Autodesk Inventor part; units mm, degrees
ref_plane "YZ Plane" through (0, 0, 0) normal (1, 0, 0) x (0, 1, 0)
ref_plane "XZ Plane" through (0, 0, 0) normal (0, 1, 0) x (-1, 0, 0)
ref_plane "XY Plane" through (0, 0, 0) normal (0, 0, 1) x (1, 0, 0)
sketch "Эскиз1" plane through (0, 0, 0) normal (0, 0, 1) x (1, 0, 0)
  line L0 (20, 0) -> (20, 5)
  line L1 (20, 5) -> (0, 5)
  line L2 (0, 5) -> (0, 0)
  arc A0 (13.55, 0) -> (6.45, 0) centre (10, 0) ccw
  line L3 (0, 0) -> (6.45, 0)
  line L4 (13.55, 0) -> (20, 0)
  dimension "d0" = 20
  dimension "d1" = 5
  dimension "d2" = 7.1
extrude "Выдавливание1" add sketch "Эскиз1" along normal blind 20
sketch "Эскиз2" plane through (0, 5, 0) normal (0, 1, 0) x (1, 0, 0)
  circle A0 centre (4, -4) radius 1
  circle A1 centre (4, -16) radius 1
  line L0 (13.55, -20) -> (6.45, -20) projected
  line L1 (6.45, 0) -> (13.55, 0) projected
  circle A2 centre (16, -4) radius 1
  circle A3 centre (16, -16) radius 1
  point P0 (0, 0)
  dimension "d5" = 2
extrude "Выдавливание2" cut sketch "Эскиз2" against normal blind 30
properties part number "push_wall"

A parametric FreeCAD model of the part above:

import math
import FreeCAD as App
import Part
import Sketcher

V = App.Vector

doc = App.newDocument("Part")
body = doc.addObject("PartDesign::Body", "Body")

sketch1 = body.newObject("Sketcher::SketchObject", "Sketch")
sketch1.AttachmentSupport = (doc.getObject("XY_Plane"), [""])
sketch1.MapMode = "FlatFace"
sketch1.addGeometry(Part.LineSegment(V(13.6, 0, 0), V(20, 0, 0)), False)
sketch1.addGeometry(Part.LineSegment(V(20, 0, 0), V(20, 5, 0)), False)
sketch1.addGeometry(Part.LineSegment(V(20, 5, 0), V(0, 5, 0)), False)
sketch1.addGeometry(Part.LineSegment(V(0, 5, 0), V(0, 0, 0)), False)
sketch1.addGeometry(Part.LineSegment(V(0, 0, 0), V(6.5, 0, 0)), False)
sketch1.addGeometry(Part.ArcOfCircle(Part.Circle(V(10, 0, 0), V(0, 0, 1), 3.6), math.radians(0), math.radians(180)), False)
sketch1.addConstraint(Sketcher.Constraint("Coincident", 0, 2, 1, 1))
sketch1.addConstraint(Sketcher.Constraint("Coincident", 1, 2, 2, 1))
sketch1.addConstraint(Sketcher.Constraint("Coincident", 2, 2, 3, 1))
sketch1.addConstraint(Sketcher.Constraint("Coincident", 3, 2, 4, 1))
sketch1.addConstraint(Sketcher.Constraint("Coincident", 4, 2, 5, 2))
sketch1.addConstraint(Sketcher.Constraint("Coincident", 5, 1, 0, 1))
sketch1.addConstraint(Sketcher.Constraint("Horizontal", 0))
sketch1.addConstraint(Sketcher.Constraint("Vertical", 1))
sketch1.addConstraint(Sketcher.Constraint("Horizontal", 2))
sketch1.addConstraint(Sketcher.Constraint("Vertical", 3))
sketch1.addConstraint(Sketcher.Constraint("Horizontal", 4))
sketch1.addConstraint(Sketcher.Constraint("Coincident", 3, 2, -1, 1))
sketch1.addConstraint(Sketcher.Constraint("PointOnObject", 5, 3, -1))
sketch1.addConstraint(Sketcher.Constraint("PointOnObject", 0, 2, -1))
sketch1.addConstraint(Sketcher.Constraint("Equal", 0, 4))
sketch1.addConstraint(Sketcher.Constraint("DistanceX", 2, 2, 2, 1, 20.0))
sketch1.addConstraint(Sketcher.Constraint("DistanceY", 1, 1, 1, 2, 5.0))
sketch1.addConstraint(Sketcher.Constraint("Radius", 5, 3.55))
pad1 = body.newObject("PartDesign::Pad", "Pad")
pad1.Profile = sketch1
pad1.Length = 20

sketch2 = body.newObject("Sketcher::SketchObject", "Sketch001")
sketch2.AttachmentSupport = (doc.getObject("XZ_Plane"), [""])
sketch2.MapMode = "FlatFace"
sketch2.AttachmentOffset = App.Placement(V(0, 0, -5), App.Rotation())
sketch2.addGeometry(Part.Circle(V(4, 4, 0), V(0, 0, 1), 1), False)
sketch2.addGeometry(Part.Circle(V(4, 16, 0), V(0, 0, 1), 1), False)
sketch2.addGeometry(Part.Circle(V(16, 4, 0), V(0, 0, 1), 1), False)
sketch2.addGeometry(Part.Circle(V(16, 16, 0), V(0, 0, 1), 1), False)
sketch2.addConstraint(Sketcher.Constraint("Equal", 0, 1))
sketch2.addConstraint(Sketcher.Constraint("Equal", 1, 2))
sketch2.addConstraint(Sketcher.Constraint("Equal", 2, 3))
sketch2.addConstraint(Sketcher.Constraint("Horizontal", 0, 3, 2, 3))
sketch2.addConstraint(Sketcher.Constraint("Horizontal", 1, 3, 3, 3))
sketch2.addConstraint(Sketcher.Constraint("Vertical", 0, 3, 1, 3))
sketch2.addConstraint(Sketcher.Constraint("Vertical", 2, 3, 3, 3))
sketch2.addConstraint(Sketcher.Constraint("Diameter", 0, 2.0))
sketch2.addConstraint(Sketcher.Constraint("DistanceX", -1, 1, 0, 3, 4.0))
sketch2.addConstraint(Sketcher.Constraint("DistanceY", -1, 1, 0, 3, 4.0))
sketch2.addConstraint(Sketcher.Constraint("DistanceY", -1, 1, 1, 3, 16.0))
sketch2.addConstraint(Sketcher.Constraint("DistanceX", -1, 1, 2, 3, 16.0))
pocket1 = body.newObject("PartDesign::Pocket", "Pocket")
pocket1.Profile = sketch2
pocket1.Length = 30
pocket1.Reversed = True

doc.recompute()
